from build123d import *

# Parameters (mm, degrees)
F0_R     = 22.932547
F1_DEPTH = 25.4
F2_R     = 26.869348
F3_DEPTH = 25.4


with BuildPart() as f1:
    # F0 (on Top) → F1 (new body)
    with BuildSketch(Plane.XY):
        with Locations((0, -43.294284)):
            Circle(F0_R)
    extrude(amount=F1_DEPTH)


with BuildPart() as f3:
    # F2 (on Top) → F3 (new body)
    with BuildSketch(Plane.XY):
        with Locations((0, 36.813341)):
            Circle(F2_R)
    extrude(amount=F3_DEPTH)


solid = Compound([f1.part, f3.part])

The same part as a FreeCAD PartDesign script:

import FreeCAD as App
import Part
import Sketcher

V = App.Vector

doc = App.newDocument("Part")
params = doc.addObject("Spreadsheet::Sheet", "Params")
for row, (alias, value) in enumerate([
    ("pad1_length", "1 in"),
    ("pad2_length", "1 in"),
], start=1):
    params.set(f"A{row}", alias)
    params.set(f"B{row}", "=" + value)
    params.setAlias(f"B{row}", alias)

body = doc.addObject("PartDesign::Body", "Body")

sketch1 = body.newObject("Sketcher::SketchObject", "Sketch")
sketch1.AttachmentSupport = (doc.getObject("XY_Plane"), [""])
sketch1.MapMode = "FlatFace"
sketch1.addGeometry(Part.Circle(V(0, -43, 0), V(0, 0, 1), 23), False)
sketch1.addConstraint(Sketcher.Constraint("PointOnObject", 0, 3, -2))
sketch1.addConstraint(Sketcher.Constraint("Diameter", 0, 45.865094))
sketch1.addConstraint(Sketcher.Constraint("DistanceY", 0, 3, -1, 1, 43.294284))
pad1 = body.newObject("PartDesign::Pad", "Pad")
pad1.Profile = sketch1
pad1.setExpression("Length", "Params.pad1_length")
body2 = doc.addObject("PartDesign::Body", "Body001")

sketch2 = body2.newObject("Sketcher::SketchObject", "Sketch001")
sketch2.AttachmentSupport = (doc.getObject("XY_Plane001"), [""])
sketch2.MapMode = "FlatFace"
sketch2.addGeometry(Part.Circle(V(0, 37, 0), V(0, 0, 1), 27), False)
sketch2.addConstraint(Sketcher.Constraint("PointOnObject", 0, 3, -2))
sketch2.addConstraint(Sketcher.Constraint("Diameter", 0, 53.738696))
sketch2.addConstraint(Sketcher.Constraint("DistanceY", -1, 1, 0, 3, 36.813341))
pad2 = body2.newObject("PartDesign::Pad", "Pad001")
pad2.Profile = sketch2
pad2.setExpression("Length", "Params.pad2_length")

doc.recompute()
